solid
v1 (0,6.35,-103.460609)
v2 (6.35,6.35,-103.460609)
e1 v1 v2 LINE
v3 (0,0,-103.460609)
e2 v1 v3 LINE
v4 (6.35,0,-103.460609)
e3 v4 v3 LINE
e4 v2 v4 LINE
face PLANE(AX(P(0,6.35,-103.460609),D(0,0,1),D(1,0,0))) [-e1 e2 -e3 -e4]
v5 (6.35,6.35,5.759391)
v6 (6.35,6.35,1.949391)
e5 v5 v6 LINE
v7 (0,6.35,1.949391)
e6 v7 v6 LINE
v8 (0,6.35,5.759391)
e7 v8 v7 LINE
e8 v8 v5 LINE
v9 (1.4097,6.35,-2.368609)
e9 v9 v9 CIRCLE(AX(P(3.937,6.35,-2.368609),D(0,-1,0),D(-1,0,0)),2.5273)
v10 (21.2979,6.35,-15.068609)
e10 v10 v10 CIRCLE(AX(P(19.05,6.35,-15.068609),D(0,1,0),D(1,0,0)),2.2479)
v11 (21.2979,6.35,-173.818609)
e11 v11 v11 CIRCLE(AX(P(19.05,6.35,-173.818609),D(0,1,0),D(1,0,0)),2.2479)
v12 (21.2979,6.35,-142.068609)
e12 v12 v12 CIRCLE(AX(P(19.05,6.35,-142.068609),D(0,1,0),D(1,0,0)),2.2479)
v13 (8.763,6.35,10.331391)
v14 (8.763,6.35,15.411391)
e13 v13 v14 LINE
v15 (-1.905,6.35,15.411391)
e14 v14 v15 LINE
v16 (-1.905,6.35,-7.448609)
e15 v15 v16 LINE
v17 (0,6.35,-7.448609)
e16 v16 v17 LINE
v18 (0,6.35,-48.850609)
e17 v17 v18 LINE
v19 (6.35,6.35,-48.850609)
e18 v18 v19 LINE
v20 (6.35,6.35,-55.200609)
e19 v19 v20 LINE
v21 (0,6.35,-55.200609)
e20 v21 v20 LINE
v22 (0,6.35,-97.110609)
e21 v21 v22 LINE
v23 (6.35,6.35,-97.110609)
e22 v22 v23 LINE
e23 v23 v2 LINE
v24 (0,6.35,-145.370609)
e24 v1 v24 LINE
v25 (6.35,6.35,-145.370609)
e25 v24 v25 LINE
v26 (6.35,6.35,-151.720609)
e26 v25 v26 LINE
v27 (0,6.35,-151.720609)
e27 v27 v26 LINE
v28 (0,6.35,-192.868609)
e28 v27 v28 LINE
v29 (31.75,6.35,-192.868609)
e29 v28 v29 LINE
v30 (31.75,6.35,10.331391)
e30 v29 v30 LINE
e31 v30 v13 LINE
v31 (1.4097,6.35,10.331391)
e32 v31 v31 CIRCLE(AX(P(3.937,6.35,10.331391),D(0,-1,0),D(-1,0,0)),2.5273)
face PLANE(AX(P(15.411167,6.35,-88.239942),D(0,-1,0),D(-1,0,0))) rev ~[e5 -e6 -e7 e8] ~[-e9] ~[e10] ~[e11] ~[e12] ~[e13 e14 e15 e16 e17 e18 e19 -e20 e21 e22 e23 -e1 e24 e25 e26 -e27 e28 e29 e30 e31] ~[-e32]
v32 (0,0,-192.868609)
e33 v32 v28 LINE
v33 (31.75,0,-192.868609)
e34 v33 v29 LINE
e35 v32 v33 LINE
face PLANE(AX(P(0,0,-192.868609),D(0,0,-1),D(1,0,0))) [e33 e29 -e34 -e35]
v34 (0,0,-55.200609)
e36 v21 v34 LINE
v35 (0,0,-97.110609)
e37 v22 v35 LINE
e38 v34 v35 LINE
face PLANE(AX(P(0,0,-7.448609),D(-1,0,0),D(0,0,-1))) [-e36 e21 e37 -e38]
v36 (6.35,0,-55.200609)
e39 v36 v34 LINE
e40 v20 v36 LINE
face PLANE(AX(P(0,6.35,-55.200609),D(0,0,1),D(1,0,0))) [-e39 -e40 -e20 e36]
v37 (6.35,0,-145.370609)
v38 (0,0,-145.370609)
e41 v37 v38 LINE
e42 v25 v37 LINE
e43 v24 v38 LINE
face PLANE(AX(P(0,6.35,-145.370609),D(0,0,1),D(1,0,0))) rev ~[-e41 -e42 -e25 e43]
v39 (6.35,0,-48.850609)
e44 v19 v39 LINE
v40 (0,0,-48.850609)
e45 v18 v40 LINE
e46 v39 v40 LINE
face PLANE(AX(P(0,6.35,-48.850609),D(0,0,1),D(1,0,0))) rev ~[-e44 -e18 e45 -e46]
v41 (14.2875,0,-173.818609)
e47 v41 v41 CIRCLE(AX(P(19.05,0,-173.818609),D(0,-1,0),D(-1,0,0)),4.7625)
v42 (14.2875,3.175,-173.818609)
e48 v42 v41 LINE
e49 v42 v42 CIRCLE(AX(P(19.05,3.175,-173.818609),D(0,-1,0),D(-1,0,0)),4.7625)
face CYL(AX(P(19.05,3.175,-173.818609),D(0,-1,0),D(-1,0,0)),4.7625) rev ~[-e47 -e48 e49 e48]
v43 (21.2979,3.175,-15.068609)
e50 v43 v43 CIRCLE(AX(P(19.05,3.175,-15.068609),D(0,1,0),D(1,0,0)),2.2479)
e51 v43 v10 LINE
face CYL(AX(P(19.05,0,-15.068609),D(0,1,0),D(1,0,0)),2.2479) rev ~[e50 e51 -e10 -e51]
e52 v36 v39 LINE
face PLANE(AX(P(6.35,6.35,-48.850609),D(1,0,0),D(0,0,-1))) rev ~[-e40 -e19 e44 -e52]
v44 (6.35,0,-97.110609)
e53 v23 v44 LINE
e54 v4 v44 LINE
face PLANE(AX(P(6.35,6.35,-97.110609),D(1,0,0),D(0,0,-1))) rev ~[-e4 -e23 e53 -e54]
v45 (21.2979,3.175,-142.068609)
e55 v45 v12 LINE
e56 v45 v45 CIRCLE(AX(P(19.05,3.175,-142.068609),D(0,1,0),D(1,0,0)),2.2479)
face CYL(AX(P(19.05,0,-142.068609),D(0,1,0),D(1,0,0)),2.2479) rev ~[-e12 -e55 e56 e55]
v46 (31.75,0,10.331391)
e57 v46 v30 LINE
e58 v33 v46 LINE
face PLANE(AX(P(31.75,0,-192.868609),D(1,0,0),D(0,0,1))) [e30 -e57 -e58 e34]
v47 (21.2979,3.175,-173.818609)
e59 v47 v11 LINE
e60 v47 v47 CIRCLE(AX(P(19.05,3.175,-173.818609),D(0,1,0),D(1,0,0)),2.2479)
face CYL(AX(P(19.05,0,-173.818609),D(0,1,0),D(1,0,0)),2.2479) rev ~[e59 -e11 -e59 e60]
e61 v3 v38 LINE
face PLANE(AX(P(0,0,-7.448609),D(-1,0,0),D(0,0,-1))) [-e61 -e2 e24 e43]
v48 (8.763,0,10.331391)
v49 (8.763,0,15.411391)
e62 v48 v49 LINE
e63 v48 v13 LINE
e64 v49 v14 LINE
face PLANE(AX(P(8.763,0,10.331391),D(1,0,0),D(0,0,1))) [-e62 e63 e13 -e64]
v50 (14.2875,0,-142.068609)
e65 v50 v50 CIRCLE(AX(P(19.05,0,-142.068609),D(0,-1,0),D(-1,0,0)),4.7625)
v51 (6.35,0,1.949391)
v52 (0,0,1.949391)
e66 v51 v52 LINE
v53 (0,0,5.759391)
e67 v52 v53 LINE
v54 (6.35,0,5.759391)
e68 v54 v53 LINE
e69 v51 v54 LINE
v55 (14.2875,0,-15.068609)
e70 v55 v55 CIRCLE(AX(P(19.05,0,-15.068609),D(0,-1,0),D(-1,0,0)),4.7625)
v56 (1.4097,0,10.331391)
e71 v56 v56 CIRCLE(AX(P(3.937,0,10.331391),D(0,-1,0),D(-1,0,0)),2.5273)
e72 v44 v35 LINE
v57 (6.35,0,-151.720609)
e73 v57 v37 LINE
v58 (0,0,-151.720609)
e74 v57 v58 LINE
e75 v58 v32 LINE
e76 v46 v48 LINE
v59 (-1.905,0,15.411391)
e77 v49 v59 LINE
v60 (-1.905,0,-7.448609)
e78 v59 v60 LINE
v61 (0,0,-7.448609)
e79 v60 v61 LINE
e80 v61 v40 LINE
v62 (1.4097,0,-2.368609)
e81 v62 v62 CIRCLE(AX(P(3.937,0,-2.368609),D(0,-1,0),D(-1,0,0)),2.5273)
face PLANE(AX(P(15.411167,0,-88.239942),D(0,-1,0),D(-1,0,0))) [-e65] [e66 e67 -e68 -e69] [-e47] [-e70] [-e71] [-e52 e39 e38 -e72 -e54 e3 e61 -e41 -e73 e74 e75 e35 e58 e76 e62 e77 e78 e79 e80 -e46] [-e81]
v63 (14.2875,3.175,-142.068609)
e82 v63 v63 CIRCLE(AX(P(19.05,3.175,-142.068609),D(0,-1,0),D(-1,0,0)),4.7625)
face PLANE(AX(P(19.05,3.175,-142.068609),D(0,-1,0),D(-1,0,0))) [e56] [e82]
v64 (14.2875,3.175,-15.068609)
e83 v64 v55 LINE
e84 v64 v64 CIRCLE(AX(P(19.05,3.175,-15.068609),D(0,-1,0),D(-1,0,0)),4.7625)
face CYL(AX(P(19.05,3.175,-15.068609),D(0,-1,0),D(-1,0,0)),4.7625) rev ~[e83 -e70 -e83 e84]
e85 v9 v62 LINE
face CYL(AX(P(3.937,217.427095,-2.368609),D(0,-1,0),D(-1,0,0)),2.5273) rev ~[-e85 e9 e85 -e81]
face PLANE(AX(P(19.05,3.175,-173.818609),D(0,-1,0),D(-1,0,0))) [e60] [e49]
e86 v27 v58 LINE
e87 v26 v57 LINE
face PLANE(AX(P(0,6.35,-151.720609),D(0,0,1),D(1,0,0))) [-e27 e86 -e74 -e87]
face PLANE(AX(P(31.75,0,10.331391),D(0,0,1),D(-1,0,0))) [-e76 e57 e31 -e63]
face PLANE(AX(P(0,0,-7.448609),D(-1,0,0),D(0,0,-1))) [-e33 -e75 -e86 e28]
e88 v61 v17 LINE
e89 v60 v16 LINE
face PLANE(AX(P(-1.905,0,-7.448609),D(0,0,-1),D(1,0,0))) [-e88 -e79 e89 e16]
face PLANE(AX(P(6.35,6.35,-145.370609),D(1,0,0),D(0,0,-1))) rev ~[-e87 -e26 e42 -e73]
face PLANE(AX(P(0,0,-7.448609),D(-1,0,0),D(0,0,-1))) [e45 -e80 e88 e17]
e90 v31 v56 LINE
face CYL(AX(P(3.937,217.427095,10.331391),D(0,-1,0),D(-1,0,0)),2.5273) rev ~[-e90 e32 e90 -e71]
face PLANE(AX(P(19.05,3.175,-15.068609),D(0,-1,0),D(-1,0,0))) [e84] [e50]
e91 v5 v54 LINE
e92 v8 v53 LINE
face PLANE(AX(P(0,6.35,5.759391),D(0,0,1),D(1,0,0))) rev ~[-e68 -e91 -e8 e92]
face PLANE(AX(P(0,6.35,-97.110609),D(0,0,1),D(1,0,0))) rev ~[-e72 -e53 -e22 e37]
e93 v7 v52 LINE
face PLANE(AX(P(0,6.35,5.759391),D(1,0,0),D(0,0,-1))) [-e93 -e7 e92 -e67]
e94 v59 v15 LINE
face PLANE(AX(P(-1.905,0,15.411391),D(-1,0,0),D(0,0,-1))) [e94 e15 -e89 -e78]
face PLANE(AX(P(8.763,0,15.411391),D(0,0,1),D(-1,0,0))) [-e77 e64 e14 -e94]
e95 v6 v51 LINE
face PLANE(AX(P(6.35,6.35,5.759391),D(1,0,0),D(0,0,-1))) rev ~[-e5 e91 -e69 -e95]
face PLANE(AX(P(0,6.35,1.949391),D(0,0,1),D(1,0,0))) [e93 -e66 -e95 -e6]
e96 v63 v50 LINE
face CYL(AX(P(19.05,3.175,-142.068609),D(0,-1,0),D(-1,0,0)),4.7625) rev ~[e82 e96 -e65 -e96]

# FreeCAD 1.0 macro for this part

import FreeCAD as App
import Part
import Sketcher

V = App.Vector
Q = App.Units.Quantity

doc = App.newDocument("Part")
body = doc.addObject("PartDesign::Body", "Body")

sketch1 = body.newObject("Sketcher::SketchObject", "Sketch")
sketch1.AttachmentSupport = (doc.getObject("XZ_Plane"), [""])
sketch1.MapMode = "FlatFace"
sketch1.addGeometry(Part.LineSegment(V(8.8, 15.4, 0), V(8.8, 10.3, 0)), False)
sketch1.addGeometry(Part.LineSegment(V(8.8, 10.3, 0), V(31.8, 10.3, 0)), False)
sketch1.addGeometry(Part.LineSegment(V(31.8, 10.3, 0), V(31.8, -192.9, 0)), False)
sketch1.addGeometry(Part.LineSegment(V(31.8, -192.9, 0), V(0, -192.9, 0)), False)
sketch1.addGeometry(Part.LineSegment(V(0, -192.9, 0), V(0, -7.4, 0)), False)
sketch1.addGeometry(Part.LineSegment(V(0, -7.4, 0), V(-1.9, -7.4, 0)), False)
sketch1.addGeometry(Part.LineSegment(V(-1.9, -7.4, 0), V(-1.9, 15.4, 0)), False)
sketch1.addGeometry(Part.LineSegment(V(-1.9, 15.4, 0), V(8.8, 15.4, 0)), False)
sketch1.addConstraint(Sketcher.Constraint("Coincident", 0, 2, 1, 1))
sketch1.addConstraint(Sketcher.Constraint("Coincident", 1, 2, 2, 1))
sketch1.addConstraint(Sketcher.Constraint("Coincident", 2, 2, 3, 1))
sketch1.addConstraint(Sketcher.Constraint("Coincident", 3, 2, 4, 1))
sketch1.addConstraint(Sketcher.Constraint("Coincident", 4, 2, 5, 1))
sketch1.addConstraint(Sketcher.Constraint("Coincident", 5, 2, 6, 1))
sketch1.addConstraint(Sketcher.Constraint("Coincident", 6, 2, 7, 1))
sketch1.addConstraint(Sketcher.Constraint("Coincident", 7, 2, 0, 1))
sketch1.addConstraint(Sketcher.Constraint("Vertical", 0))
sketch1.addConstraint(Sketcher.Constraint("Horizontal", 1))
sketch1.addConstraint(Sketcher.Constraint("Vertical", 2))
sketch1.addConstraint(Sketcher.Constraint("Horizontal", 3))
sketch1.addConstraint(Sketcher.Constraint("Vertical", 4))
sketch1.addConstraint(Sketcher.Constraint("Horizontal", 5))
sketch1.addConstraint(Sketcher.Constraint("Vertical", 6))
sketch1.addConstraint(Sketcher.Constraint("Horizontal", 7))
sketch1.addConstraint(Sketcher.Constraint("PointOnObject", 3, 2, -2))
sketch1.addConstraint(Sketcher.Constraint("DistanceY", 2, 2, 2, 1, Q("8 in")))
sketch1.addConstraint(Sketcher.Constraint("DistanceY", 0, 2, 0, 1, Q("0.2 in")))
sketch1.addConstraint(Sketcher.Constraint("DistanceY", 4, 1, 4, 2, Q("7.3 in")))
sketch1.addConstraint(Sketcher.Constraint("DistanceX", 3, 2, 3, 1, Q("1.25 in")))
sketch1.addConstraint(Sketcher.Constraint("DistanceX", 7, 1, 7, 2, Q("0.42 in")))
sketch1.addConstraint(Sketcher.Constraint("DistanceX", 1, 1, 1, 2, Q("0.905 in")))
sketch1.addConstraint(Sketcher.Constraint("DistanceY", -1, 1, 0, 2, 10.331391))
pad1 = body.newObject("PartDesign::Pad", "Pad")
pad1.Profile = sketch1
pad1.Length = Q("0.25 in")
pad1.Reversed = True

sketch2 = body.newObject("Sketcher::SketchObject", "Sketch001")
sketch2.AttachmentSupport = (doc.getObject("XZ_Plane"), [""])
sketch2.MapMode = "FlatFace"
sketch2.AttachmentOffset = App.Placement(V(0, 0, -0.25 * 25.4), App.Rotation())
sketch2.addGeometry(Part.LineSegment(V(0, -55, 0), V(0, -49, 0)), False)
sketch2.addGeometry(Part.LineSegment(V(0, -49, 0), V(6, -49, 0)), False)
sketch2.addGeometry(Part.LineSegment(V(6, -49, 0), V(6, -55, 0)), False)
sketch2.addGeometry(Part.LineSegment(V(6, -55, 0), V(0, -55, 0)), False)
sketch2.addGeometry(Part.LineSegment(V(0, -103, 0), V(0, -97, 0)), False)
sketch2.addGeometry(Part.LineSegment(V(0, -97, 0), V(6, -97, 0)), False)
sketch2.addGeometry(Part.LineSegment(V(6, -97, 0), V(6, -103, 0)), False)
sketch2.addGeometry(Part.LineSegment(V(6, -103, 0), V(0, -103, 0)), False)
sketch2.addGeometry(Part.LineSegment(V(0, -152, 0), V(0, -145, 0)), False)
sketch2.addGeometry(Part.LineSegment(V(0, -145, 0), V(6, -145, 0)), False)
sketch2.addGeometry(Part.LineSegment(V(6, -145, 0), V(6, -152, 0)), False)
sketch2.addGeometry(Part.LineSegment(V(6, -152, 0), V(0, -152, 0)), False)
sketch2.addConstraint(Sketcher.Constraint("Coincident", 0, 2, 1, 1))
sketch2.addConstraint(Sketcher.Constraint("Coincident", 1, 2, 2, 1))
sketch2.addConstraint(Sketcher.Constraint("Coincident", 2, 2, 3, 1))
sketch2.addConstraint(Sketcher.Constraint("Coincident", 3, 2, 0, 1))
sketch2.addConstraint(Sketcher.Constraint("Coincident", 4, 2, 5, 1))
sketch2.addConstraint(Sketcher.Constraint("Coincident", 5, 2, 6, 1))
sketch2.addConstraint(Sketcher.Constraint("Coincident", 6, 2, 7, 1))
sketch2.addConstraint(Sketcher.Constraint("Coincident", 7, 2, 4, 1))
sketch2.addConstraint(Sketcher.Constraint("Coincident", 8, 2, 9, 1))
sketch2.addConstraint(Sketcher.Constraint("Coincident", 9, 2, 10, 1))
sketch2.addConstraint(Sketcher.Constraint("Coincident", 10, 2, 11, 1))
sketch2.addConstraint(Sketcher.Constraint("Coincident", 11, 2, 8, 1))
sketch2.addConstraint(Sketcher.Constraint("Vertical", 0))
sketch2.addConstraint(Sketcher.Constraint("Horizontal", 1))
sketch2.addConstraint(Sketcher.Constraint("Vertical", 2))
sketch2.addConstraint(Sketcher.Constraint("Horizontal", 3))
sketch2.addConstraint(Sketcher.Constraint("Vertical", 4))
sketch2.addConstraint(Sketcher.Constraint("Horizontal", 5))
sketch2.addConstraint(Sketcher.Constraint("Vertical", 6))
sketch2.addConstraint(Sketcher.Constraint("Horizontal", 7))
sketch2.addConstraint(Sketcher.Constraint("Vertical", 8))
sketch2.addConstraint(Sketcher.Constraint("Horizontal", 9))
sketch2.addConstraint(Sketcher.Constraint("Vertical", 10))
sketch2.addConstraint(Sketcher.Constraint("Horizontal", 11))
sketch2.addConstraint(Sketcher.Constraint("PointOnObject", 0, 2, -2))
sketch2.addConstraint(Sketcher.Constraint("PointOnObject", 4, 2, -2))
sketch2.addConstraint(Sketcher.Constraint("PointOnObject", 8, 2, -2))
sketch2.addConstraint(Sketcher.Constraint("Vertical", 2, 2, 5, 2))
sketch2.addConstraint(Sketcher.Constraint("Vertical", 6, 2, 9, 2))
sketch2.addConstraint(Sketcher.Constraint("Equal", 11, 0))
sketch2.addConstraint(Sketcher.Constraint("Equal", 2, 4))
sketch2.addConstraint(Sketcher.Constraint("Equal", 6, 8))
sketch2.addConstraint(Sketcher.Constraint("DistanceX", 1, 1, 1, 2, Q("0.25 in")))
sketch2.addConstraint(Sketcher.Constraint("DistanceY", 4, 2, 0, 2, Q("1.9 in")))
sketch2.addConstraint(Sketcher.Constraint("DistanceY", 8, 2, 4, 2, Q("1.9 in")))
sketch2.addConstraint(Sketcher.Constraint("DistanceY", 0, 2, -1, 1, 48.850609))
pocket1 = body.newObject("PartDesign::Pocket", "Pocket")
pocket1.Profile = sketch2
pocket1.Type = "ThroughAll"
pocket1.Reversed = True

sketch3 = body.newObject("Sketcher::SketchObject", "Sketch002")
sketch3.AttachmentSupport = (doc.getObject("XZ_Plane"), [""])
sketch3.MapMode = "FlatFace"
sketch3.AttachmentOffset = App.Placement(V(0, 0, -0.25 * 25.4), App.Rotation())
sketch3.addGeometry(Part.Circle(V(3.9, -2.4, 0), V(0, 0, 1), 2.5), False)
sketch3.addGeometry(Part.Circle(V(3.9, 10.3, 0), V(0, 0, 1), 2.5), False)
sketch3.addConstraint(Sketcher.Constraint("Equal", 0, 1))
sketch3.addConstraint(Sketcher.Constraint("Vertical", 0, 3, 1, 3))
sketch3.addConstraint(Sketcher.Constraint("Diameter", 0, Q("0.199 in")))
sketch3.addConstraint(Sketcher.Constraint("DistanceY", 0, 3, 1, 3, Q("0.5 in")))
sketch3.addConstraint(Sketcher.Constraint("DistanceX", -1, 1, 0, 3, Q("0.155 in")))
sketch3.addConstraint(Sketcher.Constraint("DistanceY", 0, 3, -1, 1, 2.368609))
doc.recompute()
hole = body.newObject("PartDesign::Hole", "Hole")
hole.Profile = sketch3
hole.ThreadType = "None"
hole.Diameter = Q("0.199 in")
hole.DepthType = "ThroughAll"
hole.Reversed = True

sketch4 = body.newObject("Sketcher::SketchObject", "Sketch003")
sketch4.AttachmentSupport = (doc.getObject("XZ_Plane"), [""])
sketch4.MapMode = "FlatFace"
sketch4.AttachmentOffset = App.Placement(V(0, 0, -0.25 * 25.4), App.Rotation())
sketch4.addGeometry(Part.LineSegment(V(0, 1.9, 0), V(0, 5.8, 0)), False)
sketch4.addGeometry(Part.LineSegment(V(0, 5.8, 0), V(6.3, 5.8, 0)), False)
sketch4.addGeometry(Part.LineSegment(V(6.3, 5.8, 0), V(6.3, 1.9, 0)), False)
sketch4.addGeometry(Part.LineSegment(V(6.3, 1.9, 0), V(0, 1.9, 0)), False)
sketch4.addConstraint(Sketcher.Constraint("Coincident", 0, 2, 1, 1))
sketch4.addConstraint(Sketcher.Constraint("Coincident", 1, 2, 2, 1))
sketch4.addConstraint(Sketcher.Constraint("Coincident", 2, 2, 3, 1))
sketch4.addConstraint(Sketcher.Constraint("Coincident", 3, 2, 0, 1))
sketch4.addConstraint(Sketcher.Constraint("Vertical", 0))
sketch4.addConstraint(Sketcher.Constraint("Horizontal", 1))
sketch4.addConstraint(Sketcher.Constraint("Vertical", 2))
sketch4.addConstraint(Sketcher.Constraint("Horizontal", 3))
sketch4.addConstraint(Sketcher.Constraint("PointOnObject", 0, 2, -2))
sketch4.addConstraint(Sketcher.Constraint("DistanceX", 1, 1, 1, 2, Q("0.25 in")))
sketch4.addConstraint(Sketcher.Constraint("DistanceY", 0, 1, 0, 2, Q("0.15 in")))
sketch4.addConstraint(Sketcher.Constraint("DistanceY", -1, 1, 0, 2, 5.759391))
pocket2 = body.newObject("PartDesign::Pocket", "Pocket001")
pocket2.Profile = sketch4
pocket2.Type = "ThroughAll"
pocket2.Reversed = True

sketch5 = body.newObject("Sketcher::SketchObject", "Sketch004")
sketch5.AttachmentSupport = (doc.getObject("XZ_Plane"), [""])
sketch5.MapMode = "FlatFace"
sketch5.addGeometry(Part.Circle(V(19.1, -173.8, 0), V(0, 0, 1), 2.2), False)
sketch5.addGeometry(Part.Circle(V(19.1, -142.1, 0), V(0, 0, 1), 2.2), False)
sketch5.addGeometry(Part.Circle(V(19.1, -15.1, 0), V(0, 0, 1), 2.2), False)
sketch5.addConstraint(Sketcher.Constraint("Equal", 0, 1))
sketch5.addConstraint(Sketcher.Constraint("Equal", 1, 2))
sketch5.addConstraint(Sketcher.Constraint("Vertical", 0, 3, 1, 3))
sketch5.addConstraint(Sketcher.Constraint("Vertical", 1, 3, 2, 3))
sketch5.addConstraint(Sketcher.Constraint("Diameter", 0, Q("0.177 in")))
sketch5.addConstraint(Sketcher.Constraint("DistanceY", 1, 3, 2, 3, Q("5 in")))
sketch5.addConstraint(Sketcher.Constraint("DistanceX", -1, 1, 0, 3, Q("0.75 in")))
sketch5.addConstraint(Sketcher.Constraint("DistanceY", 0, 3, 1, 3, Q("1.25 in")))
sketch5.addConstraint(Sketcher.Constraint("DistanceY", 0, 3, -1, 1, 173.818609))
doc.recompute()
hole2 = body.newObject("PartDesign::Hole", "Hole001")
hole2.Profile = sketch5
hole2.ThreadType = "None"
hole2.Diameter = Q("0.177 in")
hole2.DepthType = "ThroughAll"
hole2.HoleCutType = "Counterbore"
hole2.HoleCutDiameter = Q("0.375 in")
hole2.HoleCutDepth = Q("0.125 in")

doc.recompute()
